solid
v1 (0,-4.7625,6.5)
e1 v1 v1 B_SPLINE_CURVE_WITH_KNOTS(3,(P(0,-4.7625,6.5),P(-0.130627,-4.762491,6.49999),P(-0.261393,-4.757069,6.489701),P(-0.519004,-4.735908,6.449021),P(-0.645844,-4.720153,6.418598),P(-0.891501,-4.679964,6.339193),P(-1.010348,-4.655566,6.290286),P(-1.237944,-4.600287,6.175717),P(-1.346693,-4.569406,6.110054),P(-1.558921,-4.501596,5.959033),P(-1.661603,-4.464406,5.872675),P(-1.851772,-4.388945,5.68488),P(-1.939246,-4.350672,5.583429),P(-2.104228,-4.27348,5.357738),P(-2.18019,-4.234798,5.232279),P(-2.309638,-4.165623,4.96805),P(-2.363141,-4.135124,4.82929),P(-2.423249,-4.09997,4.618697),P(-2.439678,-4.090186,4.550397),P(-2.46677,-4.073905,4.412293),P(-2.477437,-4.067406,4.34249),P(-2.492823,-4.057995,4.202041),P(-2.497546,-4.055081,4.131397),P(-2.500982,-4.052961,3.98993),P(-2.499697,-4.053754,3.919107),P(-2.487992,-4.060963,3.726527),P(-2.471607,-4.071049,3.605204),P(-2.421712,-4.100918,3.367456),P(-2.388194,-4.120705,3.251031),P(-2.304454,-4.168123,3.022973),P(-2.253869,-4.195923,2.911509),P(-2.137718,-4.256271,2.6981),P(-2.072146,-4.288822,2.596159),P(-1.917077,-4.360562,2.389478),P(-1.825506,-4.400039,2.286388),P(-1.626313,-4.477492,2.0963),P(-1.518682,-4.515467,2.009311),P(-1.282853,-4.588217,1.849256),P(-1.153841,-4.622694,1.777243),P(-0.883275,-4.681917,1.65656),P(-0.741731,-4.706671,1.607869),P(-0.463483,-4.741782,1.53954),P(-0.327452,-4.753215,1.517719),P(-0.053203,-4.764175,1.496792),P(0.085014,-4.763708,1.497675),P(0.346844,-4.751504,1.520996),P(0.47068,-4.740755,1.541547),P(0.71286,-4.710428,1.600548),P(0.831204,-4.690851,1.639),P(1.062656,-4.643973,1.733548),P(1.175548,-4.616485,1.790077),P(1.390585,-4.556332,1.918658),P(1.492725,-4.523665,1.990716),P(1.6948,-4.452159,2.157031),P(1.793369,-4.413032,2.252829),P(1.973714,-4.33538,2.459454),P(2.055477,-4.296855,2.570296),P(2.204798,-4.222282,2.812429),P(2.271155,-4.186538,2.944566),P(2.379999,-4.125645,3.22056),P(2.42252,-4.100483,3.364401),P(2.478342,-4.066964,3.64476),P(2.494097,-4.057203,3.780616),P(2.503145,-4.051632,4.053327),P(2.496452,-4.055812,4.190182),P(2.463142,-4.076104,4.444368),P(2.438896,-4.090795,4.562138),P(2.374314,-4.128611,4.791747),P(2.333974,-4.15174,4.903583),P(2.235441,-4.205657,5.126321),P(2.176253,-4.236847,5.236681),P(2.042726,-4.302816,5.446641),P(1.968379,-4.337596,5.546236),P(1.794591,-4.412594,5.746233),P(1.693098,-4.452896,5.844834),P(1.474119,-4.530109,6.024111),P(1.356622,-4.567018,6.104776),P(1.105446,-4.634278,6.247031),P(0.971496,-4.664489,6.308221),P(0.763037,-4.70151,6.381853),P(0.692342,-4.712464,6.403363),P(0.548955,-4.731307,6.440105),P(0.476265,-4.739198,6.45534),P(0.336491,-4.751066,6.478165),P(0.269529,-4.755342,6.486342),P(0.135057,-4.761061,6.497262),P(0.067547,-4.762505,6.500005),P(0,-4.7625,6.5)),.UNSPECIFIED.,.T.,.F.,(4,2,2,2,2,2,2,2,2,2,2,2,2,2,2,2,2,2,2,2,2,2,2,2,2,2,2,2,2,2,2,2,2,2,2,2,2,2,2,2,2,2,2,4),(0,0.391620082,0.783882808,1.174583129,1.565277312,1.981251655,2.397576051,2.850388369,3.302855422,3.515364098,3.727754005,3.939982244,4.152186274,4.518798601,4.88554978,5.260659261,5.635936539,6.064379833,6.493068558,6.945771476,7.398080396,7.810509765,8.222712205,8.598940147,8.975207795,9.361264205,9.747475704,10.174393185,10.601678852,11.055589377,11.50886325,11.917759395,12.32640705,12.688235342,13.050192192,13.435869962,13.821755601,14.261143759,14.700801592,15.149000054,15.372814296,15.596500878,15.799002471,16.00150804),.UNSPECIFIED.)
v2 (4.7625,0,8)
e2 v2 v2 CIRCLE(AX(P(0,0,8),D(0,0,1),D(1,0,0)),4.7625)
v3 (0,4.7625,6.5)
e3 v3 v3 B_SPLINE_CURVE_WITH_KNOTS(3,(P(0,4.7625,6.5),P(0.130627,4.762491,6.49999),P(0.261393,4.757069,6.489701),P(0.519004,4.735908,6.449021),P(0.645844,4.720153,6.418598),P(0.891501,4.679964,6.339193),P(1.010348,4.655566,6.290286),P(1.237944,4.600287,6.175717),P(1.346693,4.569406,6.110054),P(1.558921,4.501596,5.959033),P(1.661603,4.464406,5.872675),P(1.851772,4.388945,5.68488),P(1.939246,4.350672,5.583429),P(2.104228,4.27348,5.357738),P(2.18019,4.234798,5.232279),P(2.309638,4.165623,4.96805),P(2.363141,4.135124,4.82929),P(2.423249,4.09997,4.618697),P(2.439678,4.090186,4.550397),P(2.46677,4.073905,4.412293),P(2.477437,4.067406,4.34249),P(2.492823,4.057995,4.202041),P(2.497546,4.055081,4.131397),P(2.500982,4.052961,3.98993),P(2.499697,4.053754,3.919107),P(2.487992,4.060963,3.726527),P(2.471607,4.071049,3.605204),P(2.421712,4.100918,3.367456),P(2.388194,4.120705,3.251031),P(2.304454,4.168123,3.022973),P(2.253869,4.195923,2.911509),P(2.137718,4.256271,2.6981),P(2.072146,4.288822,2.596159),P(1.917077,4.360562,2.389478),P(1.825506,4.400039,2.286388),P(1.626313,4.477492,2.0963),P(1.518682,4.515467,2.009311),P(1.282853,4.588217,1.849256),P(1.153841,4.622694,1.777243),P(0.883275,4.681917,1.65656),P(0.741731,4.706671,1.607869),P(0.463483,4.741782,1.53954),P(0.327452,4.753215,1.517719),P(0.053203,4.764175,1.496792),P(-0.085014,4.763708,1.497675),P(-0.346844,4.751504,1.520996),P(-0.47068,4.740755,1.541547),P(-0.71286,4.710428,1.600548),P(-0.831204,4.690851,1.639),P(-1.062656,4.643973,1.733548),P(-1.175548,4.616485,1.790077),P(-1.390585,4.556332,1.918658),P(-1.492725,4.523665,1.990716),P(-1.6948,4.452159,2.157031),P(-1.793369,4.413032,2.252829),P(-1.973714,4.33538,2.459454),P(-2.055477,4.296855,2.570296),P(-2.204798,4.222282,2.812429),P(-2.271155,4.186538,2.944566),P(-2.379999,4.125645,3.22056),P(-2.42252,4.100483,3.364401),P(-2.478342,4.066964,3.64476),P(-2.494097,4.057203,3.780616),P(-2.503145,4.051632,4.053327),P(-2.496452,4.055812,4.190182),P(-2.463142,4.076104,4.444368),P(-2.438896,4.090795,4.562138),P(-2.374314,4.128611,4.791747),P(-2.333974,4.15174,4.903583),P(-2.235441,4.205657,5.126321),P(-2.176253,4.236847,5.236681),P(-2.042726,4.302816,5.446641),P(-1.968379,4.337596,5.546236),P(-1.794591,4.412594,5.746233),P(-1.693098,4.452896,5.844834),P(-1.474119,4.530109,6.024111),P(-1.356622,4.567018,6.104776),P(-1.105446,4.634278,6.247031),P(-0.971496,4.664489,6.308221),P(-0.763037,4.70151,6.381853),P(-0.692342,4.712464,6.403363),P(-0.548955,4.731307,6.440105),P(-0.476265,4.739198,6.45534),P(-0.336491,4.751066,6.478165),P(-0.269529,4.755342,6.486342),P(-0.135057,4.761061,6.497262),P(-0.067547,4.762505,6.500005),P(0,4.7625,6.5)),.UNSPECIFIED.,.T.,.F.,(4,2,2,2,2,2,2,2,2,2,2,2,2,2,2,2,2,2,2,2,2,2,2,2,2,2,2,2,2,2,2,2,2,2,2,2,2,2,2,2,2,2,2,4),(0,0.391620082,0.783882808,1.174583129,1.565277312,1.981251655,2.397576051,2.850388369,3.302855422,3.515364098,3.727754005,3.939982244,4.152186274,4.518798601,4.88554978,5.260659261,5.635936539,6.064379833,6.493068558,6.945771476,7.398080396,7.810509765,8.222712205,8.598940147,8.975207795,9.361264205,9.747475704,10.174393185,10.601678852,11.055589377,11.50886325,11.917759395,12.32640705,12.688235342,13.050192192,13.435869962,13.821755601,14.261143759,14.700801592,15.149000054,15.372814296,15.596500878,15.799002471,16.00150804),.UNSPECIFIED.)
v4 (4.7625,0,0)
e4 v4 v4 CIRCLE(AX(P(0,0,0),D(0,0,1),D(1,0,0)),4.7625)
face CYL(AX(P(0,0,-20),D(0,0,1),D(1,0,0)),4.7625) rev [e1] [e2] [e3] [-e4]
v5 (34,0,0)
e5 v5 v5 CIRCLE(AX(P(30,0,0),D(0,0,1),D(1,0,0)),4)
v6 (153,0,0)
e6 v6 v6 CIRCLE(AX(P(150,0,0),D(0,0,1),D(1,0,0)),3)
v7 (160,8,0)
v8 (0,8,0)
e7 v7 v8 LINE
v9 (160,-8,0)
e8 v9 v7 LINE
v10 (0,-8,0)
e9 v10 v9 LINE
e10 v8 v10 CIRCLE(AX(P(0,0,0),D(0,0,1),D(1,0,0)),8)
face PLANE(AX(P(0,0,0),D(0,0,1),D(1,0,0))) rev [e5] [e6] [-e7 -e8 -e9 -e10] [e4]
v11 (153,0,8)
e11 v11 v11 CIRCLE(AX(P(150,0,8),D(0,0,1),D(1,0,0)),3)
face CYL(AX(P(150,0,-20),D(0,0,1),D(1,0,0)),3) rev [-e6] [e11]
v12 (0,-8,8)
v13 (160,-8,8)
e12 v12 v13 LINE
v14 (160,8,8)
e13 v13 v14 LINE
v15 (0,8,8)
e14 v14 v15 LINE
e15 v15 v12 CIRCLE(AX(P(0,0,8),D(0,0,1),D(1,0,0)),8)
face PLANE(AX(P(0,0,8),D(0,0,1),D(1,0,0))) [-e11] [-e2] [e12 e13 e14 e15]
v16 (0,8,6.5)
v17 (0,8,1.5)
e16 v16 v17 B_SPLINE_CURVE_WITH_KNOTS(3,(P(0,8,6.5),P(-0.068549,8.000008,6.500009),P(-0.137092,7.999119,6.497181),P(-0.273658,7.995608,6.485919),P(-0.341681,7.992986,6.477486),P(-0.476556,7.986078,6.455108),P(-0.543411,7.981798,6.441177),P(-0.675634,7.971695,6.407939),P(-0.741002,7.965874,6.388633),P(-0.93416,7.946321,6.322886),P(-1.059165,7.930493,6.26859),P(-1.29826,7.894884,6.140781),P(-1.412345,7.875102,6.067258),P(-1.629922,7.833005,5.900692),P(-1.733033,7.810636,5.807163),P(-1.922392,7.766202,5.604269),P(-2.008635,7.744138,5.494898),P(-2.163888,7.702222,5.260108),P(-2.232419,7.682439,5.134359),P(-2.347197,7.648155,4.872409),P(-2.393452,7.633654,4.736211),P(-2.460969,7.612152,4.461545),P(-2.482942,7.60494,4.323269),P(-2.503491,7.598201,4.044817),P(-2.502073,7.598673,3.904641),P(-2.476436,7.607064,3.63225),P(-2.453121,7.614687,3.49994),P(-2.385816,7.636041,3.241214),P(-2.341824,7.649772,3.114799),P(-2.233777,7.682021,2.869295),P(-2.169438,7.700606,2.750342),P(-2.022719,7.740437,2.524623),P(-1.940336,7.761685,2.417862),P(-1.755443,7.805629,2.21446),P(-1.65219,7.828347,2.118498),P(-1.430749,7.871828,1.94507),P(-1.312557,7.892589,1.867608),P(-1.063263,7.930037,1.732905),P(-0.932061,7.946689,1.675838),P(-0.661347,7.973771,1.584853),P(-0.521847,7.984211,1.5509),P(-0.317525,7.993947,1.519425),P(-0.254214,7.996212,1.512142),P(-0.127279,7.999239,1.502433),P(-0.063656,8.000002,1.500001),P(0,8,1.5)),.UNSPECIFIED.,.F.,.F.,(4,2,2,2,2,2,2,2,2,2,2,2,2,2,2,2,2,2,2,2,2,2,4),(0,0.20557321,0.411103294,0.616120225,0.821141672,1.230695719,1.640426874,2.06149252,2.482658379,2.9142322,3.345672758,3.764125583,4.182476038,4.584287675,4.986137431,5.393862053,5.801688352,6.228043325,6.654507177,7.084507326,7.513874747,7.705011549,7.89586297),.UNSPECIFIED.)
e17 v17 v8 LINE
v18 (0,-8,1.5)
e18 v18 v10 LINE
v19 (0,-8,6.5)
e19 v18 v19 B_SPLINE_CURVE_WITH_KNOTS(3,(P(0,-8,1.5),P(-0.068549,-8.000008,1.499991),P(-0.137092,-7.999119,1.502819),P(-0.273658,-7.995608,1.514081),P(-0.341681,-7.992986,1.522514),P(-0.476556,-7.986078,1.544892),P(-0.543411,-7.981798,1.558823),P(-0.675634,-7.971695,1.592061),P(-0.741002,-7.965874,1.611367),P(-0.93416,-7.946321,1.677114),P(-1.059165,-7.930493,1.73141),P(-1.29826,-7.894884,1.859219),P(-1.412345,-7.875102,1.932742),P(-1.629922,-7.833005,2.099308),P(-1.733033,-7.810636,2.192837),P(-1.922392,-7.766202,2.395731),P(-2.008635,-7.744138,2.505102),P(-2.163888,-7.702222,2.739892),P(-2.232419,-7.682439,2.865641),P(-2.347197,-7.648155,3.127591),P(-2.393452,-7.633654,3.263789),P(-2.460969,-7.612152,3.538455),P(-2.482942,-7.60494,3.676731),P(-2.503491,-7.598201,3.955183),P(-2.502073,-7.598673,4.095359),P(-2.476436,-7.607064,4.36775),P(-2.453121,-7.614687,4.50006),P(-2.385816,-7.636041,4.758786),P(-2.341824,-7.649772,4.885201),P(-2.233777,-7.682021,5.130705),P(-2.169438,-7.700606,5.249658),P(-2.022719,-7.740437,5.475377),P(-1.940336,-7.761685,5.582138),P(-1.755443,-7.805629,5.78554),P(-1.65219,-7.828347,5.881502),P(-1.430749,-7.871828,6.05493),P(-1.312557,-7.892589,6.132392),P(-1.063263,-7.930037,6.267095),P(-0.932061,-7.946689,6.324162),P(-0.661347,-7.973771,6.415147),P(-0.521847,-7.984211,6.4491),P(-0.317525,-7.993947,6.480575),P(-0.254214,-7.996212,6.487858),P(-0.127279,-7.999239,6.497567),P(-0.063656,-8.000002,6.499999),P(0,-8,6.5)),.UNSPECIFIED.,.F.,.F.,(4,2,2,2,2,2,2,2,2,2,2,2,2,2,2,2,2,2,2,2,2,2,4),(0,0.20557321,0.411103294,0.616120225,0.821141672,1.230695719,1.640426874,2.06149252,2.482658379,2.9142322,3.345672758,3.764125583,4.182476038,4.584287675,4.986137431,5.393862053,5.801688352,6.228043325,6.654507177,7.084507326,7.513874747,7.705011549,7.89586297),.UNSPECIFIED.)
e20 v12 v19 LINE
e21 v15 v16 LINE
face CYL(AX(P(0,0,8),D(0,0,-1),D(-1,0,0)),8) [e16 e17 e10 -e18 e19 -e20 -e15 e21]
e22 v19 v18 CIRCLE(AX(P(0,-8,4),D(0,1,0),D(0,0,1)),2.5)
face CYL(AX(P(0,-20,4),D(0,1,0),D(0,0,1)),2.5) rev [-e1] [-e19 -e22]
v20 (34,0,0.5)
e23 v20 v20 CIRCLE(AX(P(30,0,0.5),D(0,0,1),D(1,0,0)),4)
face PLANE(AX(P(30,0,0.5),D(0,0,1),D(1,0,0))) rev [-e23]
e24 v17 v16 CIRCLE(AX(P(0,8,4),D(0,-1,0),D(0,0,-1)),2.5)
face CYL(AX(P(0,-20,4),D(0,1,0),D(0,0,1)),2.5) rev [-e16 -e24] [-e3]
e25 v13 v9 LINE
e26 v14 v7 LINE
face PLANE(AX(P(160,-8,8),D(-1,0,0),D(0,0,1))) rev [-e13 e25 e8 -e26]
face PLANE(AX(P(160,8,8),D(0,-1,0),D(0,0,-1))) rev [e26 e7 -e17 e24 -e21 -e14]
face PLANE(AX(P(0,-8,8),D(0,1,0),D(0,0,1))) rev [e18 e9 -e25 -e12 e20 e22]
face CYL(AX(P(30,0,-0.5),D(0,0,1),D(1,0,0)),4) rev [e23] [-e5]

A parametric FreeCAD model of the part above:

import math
import FreeCAD as App
import Part
import Sketcher
from FreeCAD import Vector
Q = App.Units.Quantity

doc = App.newDocument("Part")
body = doc.addObject("PartDesign::Body", "Body")

sketch1 = body.newObject("Sketcher::SketchObject", "Sketch")
sketch1.AttachmentSupport = (doc.getObject("XY_Plane"), [""])
sketch1.MapMode = "FlatFace"
sketch1.addGeometry(Part.LineSegment(Vector(0, -8, 0), Vector(160, -8, 0)), False)
sketch1.addGeometry(Part.LineSegment(Vector(160, -8, 0), Vector(160, 8, 0)), False)
sketch1.addGeometry(Part.LineSegment(Vector(160, 8, 0), Vector(0, 8, 0)), False)
sketch1.addGeometry(Part.ArcOfCircle(Part.Circle(Vector(0, 0, 0), Vector(0, 0, 1), 8), math.radians(90), math.radians(270)), False)
sketch1.addConstraint(Sketcher.Constraint("Coincident", 0, 2, 1, 1))
sketch1.addConstraint(Sketcher.Constraint("Coincident", 1, 2, 2, 1))
sketch1.addConstraint(Sketcher.Constraint("Tangent", 2, 2, 3, 1))
sketch1.addConstraint(Sketcher.Constraint("Tangent", 3, 2, 0, 1))
sketch1.addConstraint(Sketcher.Constraint("Horizontal", 0))
sketch1.addConstraint(Sketcher.Constraint("Vertical", 1))
sketch1.addConstraint(Sketcher.Constraint("Horizontal", 2))
sketch1.addConstraint(Sketcher.Constraint("Coincident", 3, 3, -1, 1))
sketch1.addConstraint(Sketcher.Constraint("Radius", 3, Q("8 mm")))
sketch1.addConstraint(Sketcher.Constraint("DistanceX", 0, 1, 0, 2, Q("160 mm")))
pad1 = body.newObject("PartDesign::Pad", "Pad")
pad1.Profile = sketch1
pad1.Length = 8

sketch2 = body.newObject("Sketcher::SketchObject", "Sketch001")
sketch2.AttachmentSupport = (doc.getObject("XY_Plane"), [""])
sketch2.MapMode = "FlatFace"
sketch2.addGeometry(Part.Circle(Vector(0, 0, 0), Vector(0, 0, 1), 4.7625), False)
sketch2.addGeometry(Part.Circle(Vector(150, 0, 0), Vector(0, 0, 1), 3), False)
sketch2.addConstraint(Sketcher.Constraint("Coincident", 0, 3, -1, 1))
sketch2.addConstraint(Sketcher.Constraint("PointOnObject", 1, 3, -1))
sketch2.addConstraint(Sketcher.Constraint("Diameter", 1, Q("6 mm")))
sketch2.addConstraint(Sketcher.Constraint("Diameter", 0, Q("9.525 mm")))
sketch2.addConstraint(Sketcher.Constraint("DistanceX", -1, 1, 1, 3, Q("150 mm")))
pocket1 = body.newObject("PartDesign::Pocket", "Pocket")
pocket1.Profile = sketch2
pocket1.Length = 40
pocket1.Midplane = True

sketch3 = body.newObject("Sketcher::SketchObject", "Sketch002")
sketch3.AttachmentSupport = (doc.getObject("XY_Plane"), [""])
sketch3.MapMode = "FlatFace"
sketch3.addGeometry(Part.Circle(Vector(30, 0, 0), Vector(0, 0, 1), 4), False)
sketch3.addConstraint(Sketcher.Constraint("PointOnObject", 0, 3, -1))
sketch3.addConstraint(Sketcher.Constraint("Diameter", 0, Q("8 mm")))
sketch3.addConstraint(Sketcher.Constraint("DistanceX", -1, 1, 0, 3, Q("30 mm")))
pocket2 = body.newObject("PartDesign::Pocket", "Pocket001")
pocket2.Profile = sketch3
pocket2.Length = 1
pocket2.Midplane = True

sketch4 = body.newObject("Sketcher::SketchObject", "Sketch003")
sketch4.AttachmentSupport = (doc.getObject("XZ_Plane"), [""])
sketch4.MapMode = "FlatFace"
sketch4.addGeometry(Part.Circle(Vector(0, 4, 0), Vector(0, 0, 1), 2.5), False)
sketch4.addConstraint(Sketcher.Constraint("PointOnObject", 0, 3, -2))
sketch4.addConstraint(Sketcher.Constraint("Diameter", 0, Q("5 mm")))
sketch4.addConstraint(Sketcher.Constraint("DistanceY", -1, 1, 0, 3, Q("4 mm")))
pocket3 = body.newObject("PartDesign::Pocket", "Pocket002")
pocket3.Profile = sketch4
pocket3.Length = 40
pocket3.Midplane = True

doc.recompute()
